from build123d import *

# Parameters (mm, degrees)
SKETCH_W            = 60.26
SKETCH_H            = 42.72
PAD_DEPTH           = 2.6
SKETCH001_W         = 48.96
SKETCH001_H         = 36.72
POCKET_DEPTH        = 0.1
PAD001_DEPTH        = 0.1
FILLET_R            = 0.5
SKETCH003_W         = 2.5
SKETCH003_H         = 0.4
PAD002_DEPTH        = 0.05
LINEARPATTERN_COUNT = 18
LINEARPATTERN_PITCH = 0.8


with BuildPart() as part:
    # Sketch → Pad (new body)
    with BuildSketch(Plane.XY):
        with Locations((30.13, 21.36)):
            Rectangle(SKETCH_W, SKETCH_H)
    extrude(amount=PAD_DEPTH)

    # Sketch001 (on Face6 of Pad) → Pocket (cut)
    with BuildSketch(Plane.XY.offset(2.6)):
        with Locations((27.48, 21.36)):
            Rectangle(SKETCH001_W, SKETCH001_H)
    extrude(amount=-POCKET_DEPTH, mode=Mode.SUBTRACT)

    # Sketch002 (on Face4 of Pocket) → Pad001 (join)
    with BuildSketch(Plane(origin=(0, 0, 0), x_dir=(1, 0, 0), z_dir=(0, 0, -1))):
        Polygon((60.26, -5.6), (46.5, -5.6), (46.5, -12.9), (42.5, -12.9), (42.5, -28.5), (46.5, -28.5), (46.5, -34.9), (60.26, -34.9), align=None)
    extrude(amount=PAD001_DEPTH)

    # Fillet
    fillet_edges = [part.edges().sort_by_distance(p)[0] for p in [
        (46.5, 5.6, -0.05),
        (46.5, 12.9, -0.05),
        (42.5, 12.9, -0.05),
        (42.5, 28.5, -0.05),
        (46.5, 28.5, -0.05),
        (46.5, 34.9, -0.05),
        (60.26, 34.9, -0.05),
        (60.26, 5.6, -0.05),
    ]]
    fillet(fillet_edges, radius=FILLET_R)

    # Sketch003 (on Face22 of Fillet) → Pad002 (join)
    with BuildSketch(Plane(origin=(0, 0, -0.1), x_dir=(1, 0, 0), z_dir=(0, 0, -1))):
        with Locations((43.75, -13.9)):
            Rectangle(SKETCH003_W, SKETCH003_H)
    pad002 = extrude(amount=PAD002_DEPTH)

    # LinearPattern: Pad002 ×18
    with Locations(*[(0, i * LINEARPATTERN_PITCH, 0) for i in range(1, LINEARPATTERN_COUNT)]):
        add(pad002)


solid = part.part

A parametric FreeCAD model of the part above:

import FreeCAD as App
import Part
import Sketcher

V = App.Vector


def edges_at(feature, points):
    """Names of the edges that pass closest to the given points."""
    edges = feature.Shape.Edges
    near = lambda p: min(range(len(edges)), key=lambda i: edges[i].distToShape(Part.Vertex(*p))[0])
    return sorted({f"Edge{near(p) + 1}" for p in points})


def add_polygon(sketch, points):
    """Adds a closed chain of lines whose ends are joined by coincident constraints."""
    first, n = sketch.GeometryCount, len(points)
    for a, b in zip(points, points[1:] + points[:1]):
        sketch.addGeometry(Part.LineSegment(App.Vector(*a, 0), App.Vector(*b, 0)), False)
    for i in range(n):
        sketch.addConstraint(Sketcher.Constraint("Coincident", first + i, 2, first + (i + 1) % n, 1))

doc = App.newDocument("Part")
body = doc.addObject("PartDesign::Body", "Body")

sketch1 = body.newObject("Sketcher::SketchObject", "Sketch")
sketch1.AttachmentSupport = (doc.getObject("XY_Plane"), [""])
sketch1.MapMode = "FlatFace"
add_polygon(sketch1, [(0, 43), (0, 0), (60, 0), (60, 43)])
sketch1.addConstraint([
    Sketcher.Constraint("Vertical", 0),
    Sketcher.Constraint("Horizontal", 1),
    Sketcher.Constraint("Vertical", 2),
    Sketcher.Constraint("Horizontal", 3),
    Sketcher.Constraint("Coincident", 0, 2, -1, 1),
    Sketcher.Constraint("DistanceX", 1, 1, 1, 2, 60.26),
    Sketcher.Constraint("DistanceY", 0, 2, 0, 1, 42.72),
])
pad1 = body.newObject("PartDesign::Pad", "Pad")
pad1.Profile = sketch1
pad1.Length = 2.6

sketch2 = body.newObject("Sketcher::SketchObject", "Sketch001")
sketch2.AttachmentSupport = (doc.getObject("XY_Plane"), [""])
sketch2.MapMode = "FlatFace"
sketch2.AttachmentOffset = App.Placement(V(0, 0, 2.6), App.Rotation())
add_polygon(sketch2, [(3, 40), (3, 3), (52, 3), (52, 40)])
sketch2.addConstraint([
    Sketcher.Constraint("Vertical", 0),
    Sketcher.Constraint("Horizontal", 1),
    Sketcher.Constraint("Vertical", 2),
    Sketcher.Constraint("Horizontal", 3),
    Sketcher.Constraint("DistanceX", -1, 1, 0, 2, 3.0),
    Sketcher.Constraint("DistanceY", -1, 1, 0, 2, 3.0),
    Sketcher.Constraint("DistanceX", 1, 1, 1, 2, 48.96),
    Sketcher.Constraint("DistanceY", 0, 2, 0, 1, 36.72),
])
pocket1 = body.newObject("PartDesign::Pocket", "Pocket")
pocket1.Profile = sketch2
pocket1.Length = 0.1

sketch3 = body.newObject("Sketcher::SketchObject", "Sketch002")
sketch3.AttachmentSupport = (doc.getObject("XY_Plane"), [""])
sketch3.MapMode = "FlatFace"
add_polygon(sketch3, [(60.3, 5.6), (46.5, 5.6), (46.5, 12.9), (42.5, 12.9), (42.5, 28.5), (46.5, 28.5), (46.5, 34.9), (60.3, 34.9)])
sketch3.addConstraint([
    Sketcher.Constraint("Horizontal", 0),
    Sketcher.Constraint("Vertical", 1),
    Sketcher.Constraint("Horizontal", 2),
    Sketcher.Constraint("Vertical", 3),
    Sketcher.Constraint("Horizontal", 4),
    Sketcher.Constraint("Vertical", 5),
    Sketcher.Constraint("Horizontal", 6),
    Sketcher.Constraint("Vertical", 7),
    Sketcher.Constraint("Vertical", 1, 2, 4, 2),
    Sketcher.Constraint("DistanceX", 2, 2, 2, 1, 4.0),
    Sketcher.Constraint("DistanceY", 1, 1, 1, 2, 7.3),
    Sketcher.Constraint("DistanceY", 3, 1, 3, 2, 15.6),
    Sketcher.Constraint("DistanceY", 5, 1, 5, 2, 6.4),
    Sketcher.Constraint("DistanceX", 0, 2, 0, 1, 13.76),
    Sketcher.Constraint("DistanceX", -1, 1, 0, 2, 46.5),
    Sketcher.Constraint("DistanceY", -1, 1, 0, 2, 5.6),
])
pad2 = body.newObject("PartDesign::Pad", "Pad001")
pad2.Profile = sketch3
pad2.Length = 0.1
pad2.Reversed = True
doc.recompute()

fillet = body.newObject("PartDesign::Fillet", "Fillet")
fillet.Base = (pad2, edges_at(pad2, [
    (46.5, 5.6, -0.05),
    (46.5, 12.9, -0.05),
    (42.5, 12.9, -0.05),
    (42.5, 28.5, -0.05),
    (46.5, 28.5, -0.05),
    (46.5, 34.9, -0.05),
    (60.26, 34.9, -0.05),
    (60.26, 5.6, -0.05),
]))
fillet.Radius = 0.5

sketch4 = body.newObject("Sketcher::SketchObject", "Sketch003")
sketch4.AttachmentSupport = (doc.getObject("XY_Plane"), [""])
sketch4.MapMode = "FlatFace"
sketch4.AttachmentOffset = App.Placement(V(0, 0, -0.1), App.Rotation())
add_polygon(sketch4, [(42.5, 13.7), (42.5, 14.1), (45, 14.1), (45, 13.7)])
sketch4.addConstraint([
    Sketcher.Constraint("Vertical", 0),
    Sketcher.Constraint("Horizontal", 1),
    Sketcher.Constraint("Vertical", 2),
    Sketcher.Constraint("Horizontal", 3),
    Sketcher.Constraint("DistanceX", 1, 1, 1, 2, 2.5),
    Sketcher.Constraint("DistanceY", 0, 1, 0, 2, 0.4),
    Sketcher.Constraint("DistanceX", -1, 1, 1, 2, 45.0),
    Sketcher.Constraint("DistanceY", -1, 1, 0, 2, 14.1),
])
pad3 = body.newObject("PartDesign::Pad", "Pad002")
pad3.Profile = sketch4
pad3.Length = 0.05
pad3.Reversed = True
doc.recompute()

linearpattern = body.newObject("PartDesign::LinearPattern", "LinearPattern")
linearpattern.Originals = [pad3]
linearpattern.Direction = (doc.getObject("Y_Axis"), [""])
linearpattern.Mode = "offset"
linearpattern.Offset = 0.8
linearpattern.Occurrences = 18
body.Tip = linearpattern

doc.recompute()
